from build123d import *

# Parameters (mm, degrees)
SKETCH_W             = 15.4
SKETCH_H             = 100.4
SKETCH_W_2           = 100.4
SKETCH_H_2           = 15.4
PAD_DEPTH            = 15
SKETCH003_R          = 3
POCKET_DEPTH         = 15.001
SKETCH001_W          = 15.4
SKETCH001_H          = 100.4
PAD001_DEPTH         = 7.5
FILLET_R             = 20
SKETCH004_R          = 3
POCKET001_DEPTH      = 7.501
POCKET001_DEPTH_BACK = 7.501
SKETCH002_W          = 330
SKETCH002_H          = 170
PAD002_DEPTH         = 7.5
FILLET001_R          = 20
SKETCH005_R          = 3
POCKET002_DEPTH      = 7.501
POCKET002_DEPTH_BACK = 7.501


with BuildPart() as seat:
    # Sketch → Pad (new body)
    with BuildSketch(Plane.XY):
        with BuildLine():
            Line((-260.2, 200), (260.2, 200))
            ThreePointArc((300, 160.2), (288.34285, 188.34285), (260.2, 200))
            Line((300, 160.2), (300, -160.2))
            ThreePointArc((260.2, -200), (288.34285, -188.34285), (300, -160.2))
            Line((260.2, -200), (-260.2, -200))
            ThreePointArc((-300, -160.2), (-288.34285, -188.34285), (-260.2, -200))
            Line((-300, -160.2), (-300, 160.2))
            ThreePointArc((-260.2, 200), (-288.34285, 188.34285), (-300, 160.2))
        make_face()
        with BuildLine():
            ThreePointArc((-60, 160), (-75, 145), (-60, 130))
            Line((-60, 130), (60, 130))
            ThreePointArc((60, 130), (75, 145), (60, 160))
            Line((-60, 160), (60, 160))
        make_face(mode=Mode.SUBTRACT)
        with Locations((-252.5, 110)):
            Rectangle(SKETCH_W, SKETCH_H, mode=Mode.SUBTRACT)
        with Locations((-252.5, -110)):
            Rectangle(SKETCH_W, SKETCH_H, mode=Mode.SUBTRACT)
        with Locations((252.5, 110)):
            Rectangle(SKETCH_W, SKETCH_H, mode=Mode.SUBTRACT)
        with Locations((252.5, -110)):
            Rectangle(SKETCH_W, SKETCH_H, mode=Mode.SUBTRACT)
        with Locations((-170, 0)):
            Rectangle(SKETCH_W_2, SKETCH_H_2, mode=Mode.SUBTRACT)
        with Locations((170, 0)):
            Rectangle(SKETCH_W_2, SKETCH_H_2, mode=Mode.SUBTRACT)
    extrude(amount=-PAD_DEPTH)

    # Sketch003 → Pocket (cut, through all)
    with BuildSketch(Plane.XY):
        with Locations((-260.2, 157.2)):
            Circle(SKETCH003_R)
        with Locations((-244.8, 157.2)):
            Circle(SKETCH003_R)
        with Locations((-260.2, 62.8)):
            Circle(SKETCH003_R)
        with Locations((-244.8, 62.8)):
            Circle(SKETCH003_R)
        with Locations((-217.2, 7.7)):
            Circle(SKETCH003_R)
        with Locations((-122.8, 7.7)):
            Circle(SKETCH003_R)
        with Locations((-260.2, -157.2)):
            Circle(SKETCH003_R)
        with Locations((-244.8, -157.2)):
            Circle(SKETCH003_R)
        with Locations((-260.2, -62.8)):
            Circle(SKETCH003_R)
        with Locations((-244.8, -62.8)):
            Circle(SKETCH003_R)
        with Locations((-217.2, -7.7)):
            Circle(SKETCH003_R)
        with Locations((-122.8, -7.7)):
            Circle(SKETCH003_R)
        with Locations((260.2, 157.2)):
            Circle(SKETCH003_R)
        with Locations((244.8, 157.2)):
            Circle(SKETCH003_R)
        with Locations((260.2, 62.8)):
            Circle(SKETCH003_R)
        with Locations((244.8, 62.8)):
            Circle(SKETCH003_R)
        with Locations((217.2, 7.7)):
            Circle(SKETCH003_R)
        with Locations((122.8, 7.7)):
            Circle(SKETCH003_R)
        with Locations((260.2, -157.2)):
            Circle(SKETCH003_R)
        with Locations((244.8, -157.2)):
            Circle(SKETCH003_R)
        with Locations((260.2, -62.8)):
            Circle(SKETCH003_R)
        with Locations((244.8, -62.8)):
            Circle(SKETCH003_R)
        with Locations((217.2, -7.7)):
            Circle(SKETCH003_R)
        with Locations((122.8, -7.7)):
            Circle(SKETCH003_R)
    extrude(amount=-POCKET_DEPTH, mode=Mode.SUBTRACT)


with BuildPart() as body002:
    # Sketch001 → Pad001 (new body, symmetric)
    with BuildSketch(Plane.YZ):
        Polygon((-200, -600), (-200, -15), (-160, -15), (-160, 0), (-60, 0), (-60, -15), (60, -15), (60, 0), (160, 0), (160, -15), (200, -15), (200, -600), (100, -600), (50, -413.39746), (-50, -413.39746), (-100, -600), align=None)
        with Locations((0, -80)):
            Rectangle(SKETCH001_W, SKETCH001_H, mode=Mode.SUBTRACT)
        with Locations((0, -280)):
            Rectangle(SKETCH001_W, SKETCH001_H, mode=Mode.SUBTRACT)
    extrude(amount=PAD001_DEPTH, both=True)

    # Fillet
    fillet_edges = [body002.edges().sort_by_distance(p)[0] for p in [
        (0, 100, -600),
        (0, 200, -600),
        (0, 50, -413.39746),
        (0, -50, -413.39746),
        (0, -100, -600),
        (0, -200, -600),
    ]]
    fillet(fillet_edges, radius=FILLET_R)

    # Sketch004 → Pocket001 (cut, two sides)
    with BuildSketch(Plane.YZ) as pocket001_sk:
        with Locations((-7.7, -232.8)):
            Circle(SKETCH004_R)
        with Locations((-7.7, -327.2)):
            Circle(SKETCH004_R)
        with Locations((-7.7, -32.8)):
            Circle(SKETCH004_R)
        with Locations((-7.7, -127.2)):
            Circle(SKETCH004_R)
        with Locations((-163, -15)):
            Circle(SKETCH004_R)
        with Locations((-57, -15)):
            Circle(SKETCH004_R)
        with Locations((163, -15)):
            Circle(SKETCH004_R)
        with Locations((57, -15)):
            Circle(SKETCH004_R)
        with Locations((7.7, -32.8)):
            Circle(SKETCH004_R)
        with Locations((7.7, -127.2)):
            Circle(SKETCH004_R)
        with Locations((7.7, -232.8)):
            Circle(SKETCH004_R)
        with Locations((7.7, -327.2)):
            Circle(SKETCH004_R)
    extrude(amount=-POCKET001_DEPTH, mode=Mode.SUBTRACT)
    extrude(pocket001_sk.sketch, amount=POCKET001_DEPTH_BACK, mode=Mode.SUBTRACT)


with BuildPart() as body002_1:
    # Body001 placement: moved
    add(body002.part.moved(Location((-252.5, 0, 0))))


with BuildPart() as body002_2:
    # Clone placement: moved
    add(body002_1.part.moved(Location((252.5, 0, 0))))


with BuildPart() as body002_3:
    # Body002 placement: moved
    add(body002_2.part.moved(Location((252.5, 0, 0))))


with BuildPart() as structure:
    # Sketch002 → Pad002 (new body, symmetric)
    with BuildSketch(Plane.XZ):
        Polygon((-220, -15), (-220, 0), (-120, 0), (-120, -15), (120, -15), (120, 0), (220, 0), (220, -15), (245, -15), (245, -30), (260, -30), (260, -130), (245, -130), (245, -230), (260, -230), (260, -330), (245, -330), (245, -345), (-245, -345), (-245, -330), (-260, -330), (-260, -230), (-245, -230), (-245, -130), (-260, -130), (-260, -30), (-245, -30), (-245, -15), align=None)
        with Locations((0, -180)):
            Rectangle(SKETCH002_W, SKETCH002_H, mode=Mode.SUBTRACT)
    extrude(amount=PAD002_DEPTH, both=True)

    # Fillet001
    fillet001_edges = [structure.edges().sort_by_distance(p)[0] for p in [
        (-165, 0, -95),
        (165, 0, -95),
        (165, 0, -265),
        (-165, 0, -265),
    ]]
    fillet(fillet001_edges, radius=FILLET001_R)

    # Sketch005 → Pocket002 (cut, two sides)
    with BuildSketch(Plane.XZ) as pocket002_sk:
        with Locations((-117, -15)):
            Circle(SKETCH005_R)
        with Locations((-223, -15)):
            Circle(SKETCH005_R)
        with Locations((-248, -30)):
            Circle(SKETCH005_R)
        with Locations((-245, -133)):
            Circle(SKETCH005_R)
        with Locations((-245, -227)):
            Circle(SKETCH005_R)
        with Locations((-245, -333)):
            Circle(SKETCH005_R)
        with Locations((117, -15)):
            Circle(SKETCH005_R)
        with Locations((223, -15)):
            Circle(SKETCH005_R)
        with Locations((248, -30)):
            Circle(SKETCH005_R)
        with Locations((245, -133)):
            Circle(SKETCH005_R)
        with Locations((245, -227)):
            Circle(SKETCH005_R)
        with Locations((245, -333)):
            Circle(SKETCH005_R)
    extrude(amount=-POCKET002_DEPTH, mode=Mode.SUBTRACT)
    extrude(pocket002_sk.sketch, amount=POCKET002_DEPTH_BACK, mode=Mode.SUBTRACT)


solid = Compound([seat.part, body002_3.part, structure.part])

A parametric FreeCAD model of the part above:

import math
import FreeCAD as App
import Part
import Sketcher
from FreeCAD import Vector
Q = App.Units.Quantity


def edges_at(feature, points):
    """Names of the edges that pass closest to the given points."""
    edges = feature.Shape.Edges
    near = lambda p: min(range(len(edges)), key=lambda i: edges[i].distToShape(Part.Vertex(*p))[0])
    return sorted({f"Edge{near(p) + 1}" for p in points})


def add_polygon(sketch, points):
    """Adds a closed chain of lines whose ends are joined by coincident constraints."""
    first, n = sketch.GeometryCount, len(points)
    for a, b in zip(points, points[1:] + points[:1]):
        sketch.addGeometry(Part.LineSegment(App.Vector(*a, 0), App.Vector(*b, 0)), False)
    for i in range(n):
        sketch.addConstraint(Sketcher.Constraint("Coincident", first + i, 2, first + (i + 1) % n, 1))

doc = App.newDocument("Part")
body = doc.addObject("PartDesign::Body", "Body")

# Sketch on XY plane
sketch1 = body.newObject("Sketcher::SketchObject", "Sketch")
sketch1.AttachmentSupport = (doc.getObject("XY_Plane"), [""])
sketch1.MapMode = "FlatFace"
sketch1.addGeometry(Part.LineSegment(Vector(260, 200, 0), Vector(-260, 200, 0)), False)  # 0
sketch1.addGeometry(Part.ArcOfCircle(Part.Circle(Vector(-260, 160, 0), Vector(0, 0, 1), 40), math.radians(90), math.radians(180)), False)  # 1
sketch1.addGeometry(Part.LineSegment(Vector(-300, 160, 0), Vector(-300, -160, 0)), False)  # 2
sketch1.addGeometry(Part.ArcOfCircle(Part.Circle(Vector(-260, -160, 0), Vector(0, 0, 1), 40), math.radians(180), math.radians(270)), False)  # 3
sketch1.addGeometry(Part.LineSegment(Vector(-260, -200, 0), Vector(260, -200, 0)), False)  # 4
sketch1.addGeometry(Part.ArcOfCircle(Part.Circle(Vector(260, -160, 0), Vector(0, 0, 1), 40), math.radians(-90), math.radians(0)), False)  # 5
sketch1.addGeometry(Part.LineSegment(Vector(300, -160, 0), Vector(300, 160, 0)), False)  # 6
sketch1.addGeometry(Part.ArcOfCircle(Part.Circle(Vector(260, 160, 0), Vector(0, 0, 1), 40), math.radians(0), math.radians(90)), False)  # 7
add_polygon(sketch1, [(245, -160), (245, -60), (260, -60), (260, -160)])  # lines 8-11
add_polygon(sketch1, [(-260, -160), (-260, -60), (-245, -60), (-245, -160)])  # lines 12-15
add_polygon(sketch1, [(120, -8), (120, 8), (220, 8), (220, -8)])  # lines 16-19
add_polygon(sketch1, [(245, 60), (245, 160), (260, 160), (260, 60)])  # lines 20-23
add_polygon(sketch1, [(-220, -8), (-220, 8), (-120, 8), (-120, -8)])  # lines 24-27
sketch1.addGeometry(Part.LineSegment(Vector(-60, 160, 0), Vector(60, 160, 0)), False)  # 28
sketch1.addGeometry(Part.ArcOfCircle(Part.Circle(Vector(60, 145, 0), Vector(0, 0, 1), 15), math.radians(-90), math.radians(90)), False)  # 29
sketch1.addGeometry(Part.LineSegment(Vector(60, 130, 0), Vector(-60, 130, 0)), False)  # 30
sketch1.addGeometry(Part.ArcOfCircle(Part.Circle(Vector(-60, 145, 0), Vector(0, 0, 1), 15), math.radians(90), math.radians(270)), False)  # 31
add_polygon(sketch1, [(-260, 60), (-260, 160), (-245, 160), (-245, 60)])  # lines 32-35
sketch1.addConstraint(Sketcher.Constraint("Tangent", 0, 2, 1, 1))
sketch1.addConstraint(Sketcher.Constraint("Tangent", 1, 2, 2, 1))
sketch1.addConstraint(Sketcher.Constraint("Tangent", 2, 2, 3, 1))
sketch1.addConstraint(Sketcher.Constraint("Tangent", 3, 2, 4, 1))
sketch1.addConstraint(Sketcher.Constraint("Tangent", 4, 2, 5, 1))
sketch1.addConstraint(Sketcher.Constraint("Tangent", 5, 2, 6, 1))
sketch1.addConstraint(Sketcher.Constraint("Tangent", 6, 2, 7, 1))
sketch1.addConstraint(Sketcher.Constraint("Tangent", 7, 2, 0, 1))
sketch1.addConstraint(Sketcher.Constraint("Tangent", 28, 2, 29, 2))
sketch1.addConstraint(Sketcher.Constraint("Tangent", 29, 1, 30, 1))
sketch1.addConstraint(Sketcher.Constraint("Tangent", 30, 2, 31, 2))
sketch1.addConstraint(Sketcher.Constraint("Tangent", 31, 1, 28, 1))
sketch1.addConstraint(Sketcher.Constraint("Horizontal", 0))
sketch1.addConstraint(Sketcher.Constraint("Vertical", 2))
sketch1.addConstraint(Sketcher.Constraint("Horizontal", 4))
sketch1.addConstraint(Sketcher.Constraint("Vertical", 6))
sketch1.addConstraint(Sketcher.Constraint("Vertical", 8))
sketch1.addConstraint(Sketcher.Constraint("Horizontal", 9))
sketch1.addConstraint(Sketcher.Constraint("Vertical", 10))
sketch1.addConstraint(Sketcher.Constraint("Horizontal", 11))
sketch1.addConstraint(Sketcher.Constraint("Vertical", 12))
sketch1.addConstraint(Sketcher.Constraint("Horizontal", 13))
sketch1.addConstraint(Sketcher.Constraint("Vertical", 14))
sketch1.addConstraint(Sketcher.Constraint("Horizontal", 15))
sketch1.addConstraint(Sketcher.Constraint("Vertical", 16))
sketch1.addConstraint(Sketcher.Constraint("Horizontal", 17))
sketch1.addConstraint(Sketcher.Constraint("Vertical", 18))
sketch1.addConstraint(Sketcher.Constraint("Horizontal", 19))
sketch1.addConstraint(Sketcher.Constraint("Vertical", 20))
sketch1.addConstraint(Sketcher.Constraint("Horizontal", 21))
sketch1.addConstraint(Sketcher.Constraint("Vertical", 22))
sketch1.addConstraint(Sketcher.Constraint("Horizontal", 23))
sketch1.addConstraint(Sketcher.Constraint("Vertical", 24))
sketch1.addConstraint(Sketcher.Constraint("Horizontal", 25))
sketch1.addConstraint(Sketcher.Constraint("Vertical", 26))
sketch1.addConstraint(Sketcher.Constraint("Horizontal", 27))
sketch1.addConstraint(Sketcher.Constraint("Horizontal", 28))
sketch1.addConstraint(Sketcher.Constraint("Horizontal", 30))
sketch1.addConstraint(Sketcher.Constraint("Vertical", 32))
sketch1.addConstraint(Sketcher.Constraint("Horizontal", 33))
sketch1.addConstraint(Sketcher.Constraint("Vertical", 34))
sketch1.addConstraint(Sketcher.Constraint("Horizontal", 35))
sketch1.addConstraint(Sketcher.Constraint("Coincident", 10, 2, 5, 3))
sketch1.addConstraint(Sketcher.Constraint("Coincident", 15, 2, 3, 3))
sketch1.addConstraint(Sketcher.Constraint("Coincident", 21, 2, 7, 3))
sketch1.addConstraint(Sketcher.Constraint("Coincident", 32, 2, 1, 3))
sketch1.addConstraint(Sketcher.Constraint("Equal", 1, 3))
sketch1.addConstraint(Sketcher.Constraint("Equal", 3, 5))
sketch1.addConstraint(Sketcher.Constraint("Equal", 5, 7))
sketch1.addConstraint(Sketcher.Constraint("Symmetric", 1, 3, 5, 3, -1, 1))
sketch1.addConstraint(Sketcher.Constraint("Symmetric", 13, 2, 23, 2, -1, 1))
sketch1.addConstraint(Sketcher.Constraint("Symmetric", 18, 2, 24, 2, -1, 1))
sketch1.addConstraint(Sketcher.Constraint("Symmetric", 16, 2, 26, 2, -1, 1))
sketch1.addConstraint(Sketcher.Constraint("Symmetric", 8, 2, 34, 2, -1, 1))
sketch1.addConstraint(Sketcher.Constraint("Symmetric", 8, 2, 13, 2, -2))
sketch1.addConstraint(Sketcher.Constraint("Horizontal", 17, 2, 24, 2))
sketch1.addConstraint(Sketcher.Constraint("Equal", 27, 8))
sketch1.addConstraint(Sketcher.Constraint("Equal", 35, 16))
sketch1.addConstraint(Sketcher.Constraint("Radius", 29, Q("15 mm")))
sketch1.addConstraint(Sketcher.Constraint("Radius", 1, Q("39.8 mm")))
sketch1.addConstraint(Sketcher.Constraint("DistanceX", 28, 1, 28, 2, Q("120 mm")))
sketch1.addConstraint(Sketcher.Constraint("DistanceX", 0, 2, 0, 1, Q("520.4 mm")))
sketch1.addConstraint(Sketcher.Constraint("DistanceX", 9, 1, 9, 2, Q("15.4 mm")))
sketch1.addConstraint(Sketcher.Constraint("DistanceX", 17, 1, 17, 2, Q("100.4 mm")))
sketch1.addConstraint(Sketcher.Constraint("DistanceY", 2, 2, 2, 1, Q("320.4 mm")))
sketch1.addConstraint(Sketcher.Constraint("DistanceX", -1, 1, 29, 3, Q("60 mm")))
sketch1.addConstraint(Sketcher.Constraint("DistanceY", -1, 1, 29, 3, Q("145 mm")))
sketch1.addConstraint(Sketcher.Constraint("DistanceX", 16, 2, 8, 2, Q("125 mm")))
pad1 = body.newObject("PartDesign::Pad", "Pad")
pad1.Profile = sketch1
pad1.Length = 15
pad1.Reversed = True

# Sketch on XY plane
sketch2 = body.newObject("Sketcher::SketchObject", "Sketch001")
sketch2.AttachmentSupport = (doc.getObject("XY_Plane"), [""])
sketch2.MapMode = "FlatFace"
sketch2.addGeometry(Part.Circle(Vector(-260.2, 157.2, 0), Vector(0, 0, 1), 3), False)
sketch2.addGeometry(Part.Circle(Vector(-244.8, 157.2, 0), Vector(0, 0, 1), 3), False)
sketch2.addGeometry(Part.Circle(Vector(-260.2, 62.8, 0), Vector(0, 0, 1), 3), False)
sketch2.addGeometry(Part.Circle(Vector(-244.8, 62.8, 0), Vector(0, 0, 1), 3), False)
sketch2.addGeometry(Part.Circle(Vector(-217.2, 7.7, 0), Vector(0, 0, 1), 3), False)
sketch2.addGeometry(Part.Circle(Vector(-122.8, 7.7, 0), Vector(0, 0, 1), 3), False)
sketch2.addGeometry(Part.Circle(Vector(-260.2, -157.2, 0), Vector(0, 0, 1), 3), False)
sketch2.addGeometry(Part.Circle(Vector(-244.8, -157.2, 0), Vector(0, 0, 1), 3), False)
sketch2.addGeometry(Part.Circle(Vector(-260.2, -62.8, 0), Vector(0, 0, 1), 3), False)
sketch2.addGeometry(Part.Circle(Vector(-244.8, -62.8, 0), Vector(0, 0, 1), 3), False)
sketch2.addGeometry(Part.Circle(Vector(-217.2, -7.7, 0), Vector(0, 0, 1), 3), False)
sketch2.addGeometry(Part.Circle(Vector(-122.8, -7.7, 0), Vector(0, 0, 1), 3), False)
sketch2.addGeometry(Part.Circle(Vector(260.2, 157.2, 0), Vector(0, 0, 1), 3), False)
sketch2.addGeometry(Part.Circle(Vector(244.8, 157.2, 0), Vector(0, 0, 1), 3), False)
sketch2.addGeometry(Part.Circle(Vector(260.2, 62.8, 0), Vector(0, 0, 1), 3), False)
sketch2.addGeometry(Part.Circle(Vector(244.8, 62.8, 0), Vector(0, 0, 1), 3), False)
sketch2.addGeometry(Part.Circle(Vector(217.2, 7.7, 0), Vector(0, 0, 1), 3), False)
sketch2.addGeometry(Part.Circle(Vector(122.8, 7.7, 0), Vector(0, 0, 1), 3), False)
sketch2.addGeometry(Part.Circle(Vector(260.2, -157.2, 0), Vector(0, 0, 1), 3), False)
sketch2.addGeometry(Part.Circle(Vector(244.8, -157.2, 0), Vector(0, 0, 1), 3), False)
sketch2.addGeometry(Part.Circle(Vector(260.2, -62.8, 0), Vector(0, 0, 1), 3), False)
sketch2.addGeometry(Part.Circle(Vector(244.8, -62.8, 0), Vector(0, 0, 1), 3), False)
sketch2.addGeometry(Part.Circle(Vector(217.2, -7.7, 0), Vector(0, 0, 1), 3), False)
sketch2.addGeometry(Part.Circle(Vector(122.8, -7.7, 0), Vector(0, 0, 1), 3), False)
sketch2.addConstraint(Sketcher.Constraint("Equal", 0, 1))
sketch2.addConstraint(Sketcher.Constraint("Equal", 1, 2))
sketch2.addConstraint(Sketcher.Constraint("Equal", 2, 3))
sketch2.addConstraint(Sketcher.Constraint("Equal", 3, 4))
sketch2.addConstraint(Sketcher.Constraint("Equal", 4, 5))
sketch2.addConstraint(Sketcher.Constraint("Equal", 5, 6))
sketch2.addConstraint(Sketcher.Constraint("Equal", 6, 7))
sketch2.addConstraint(Sketcher.Constraint("Equal", 7, 8))
sketch2.addConstraint(Sketcher.Constraint("Equal", 8, 9))
sketch2.addConstraint(Sketcher.Constraint("Equal", 9, 10))
sketch2.addConstraint(Sketcher.Constraint("Equal", 10, 11))
sketch2.addConstraint(Sketcher.Constraint("Equal", 11, 12))
sketch2.addConstraint(Sketcher.Constraint("Equal", 12, 13))
sketch2.addConstraint(Sketcher.Constraint("Equal", 13, 14))
sketch2.addConstraint(Sketcher.Constraint("Equal", 14, 15))
sketch2.addConstraint(Sketcher.Constraint("Equal", 15, 16))
sketch2.addConstraint(Sketcher.Constraint("Equal", 16, 17))
sketch2.addConstraint(Sketcher.Constraint("Equal", 17, 18))
sketch2.addConstraint(Sketcher.Constraint("Equal", 18, 19))
sketch2.addConstraint(Sketcher.Constraint("Equal", 19, 20))
sketch2.addConstraint(Sketcher.Constraint("Equal", 20, 21))
sketch2.addConstraint(Sketcher.Constraint("Equal", 21, 22))
sketch2.addConstraint(Sketcher.Constraint("Equal", 22, 23))
sketch2.addConstraint(Sketcher.Constraint("Symmetric", 6, 3, 12, 3, -1, 1))
sketch2.addConstraint(Sketcher.Constraint("Symmetric", 7, 3, 13, 3, -1, 1))
sketch2.addConstraint(Sketcher.Constraint("Symmetric", 8, 3, 14, 3, -1, 1))
sketch2.addConstraint(Sketcher.Constraint("Symmetric", 9, 3, 15, 3, -1, 1))
sketch2.addConstraint(Sketcher.Constraint("Symmetric", 10, 3, 16, 3, -1, 1))
sketch2.addConstraint(Sketcher.Constraint("Symmetric", 11, 3, 17, 3, -1, 1))
sketch2.addConstraint(Sketcher.Constraint("Symmetric", 0, 3, 18, 3, -1, 1))
sketch2.addConstraint(Sketcher.Constraint("Symmetric", 1, 3, 19, 3, -1, 1))
sketch2.addConstraint(Sketcher.Constraint("Symmetric", 2, 3, 20, 3, -1, 1))
sketch2.addConstraint(Sketcher.Constraint("Symmetric", 3, 3, 21, 3, -1, 1))
sketch2.addConstraint(Sketcher.Constraint("Symmetric", 4, 3, 22, 3, -1, 1))
sketch2.addConstraint(Sketcher.Constraint("Symmetric", 5, 3, 23, 3, -1, 1))
sketch2.addConstraint(Sketcher.Constraint("Symmetric", 0, 3, 12, 3, -2))
sketch2.addConstraint(Sketcher.Constraint("Symmetric", 1, 3, 13, 3, -2))
sketch2.addConstraint(Sketcher.Constraint("Symmetric", 2, 3, 14, 3, -2))
sketch2.addConstraint(Sketcher.Constraint("Symmetric", 3, 3, 15, 3, -2))
sketch2.addConstraint(Sketcher.Constraint("Symmetric", 4, 3, 16, 3, -2))
sketch2.addConstraint(Sketcher.Constraint("Symmetric", 5, 3, 17, 3, -2))
sketch2.addConstraint(Sketcher.Constraint("Horizontal", 0, 3, 1, 3))
sketch2.addConstraint(Sketcher.Constraint("Horizontal", 2, 3, 3, 3))
sketch2.addConstraint(Sketcher.Constraint("Horizontal", 4, 3, 5, 3))
sketch2.addConstraint(Sketcher.Constraint("Vertical", 0, 3, 2, 3))
sketch2.addConstraint(Sketcher.Constraint("Vertical", 1, 3, 3, 3))
sketch2.addConstraint(Sketcher.Constraint("Diameter", 0, Q("6 mm")))
sketch2.addConstraint(Sketcher.Constraint("DistanceX", 2, 3, 4, 3, Q("43 mm")))
sketch2.addConstraint(Sketcher.Constraint("DistanceX", 3, 3, 5, 3, Q("122 mm")))
sketch2.addConstraint(Sketcher.Constraint("DistanceY", 6, 3, 2, 3, Q("220 mm")))
sketch2.addConstraint(Sketcher.Constraint("DistanceX", 5, 3, 12, 3, Q("383 mm")))
sketch2.addConstraint(Sketcher.Constraint("DistanceX", 0, 3, -1, 1, Q("260.2 mm")))
sketch2.addConstraint(Sketcher.Constraint("DistanceY", -1, 1, 0, 3, Q("157.2 mm")))
sketch2.addConstraint(Sketcher.Constraint("DistanceY", -1, 1, 4, 3, Q("7.7 mm")))
pocket1 = body.newObject("PartDesign::Pocket", "Pocket")
pocket1.Profile = sketch2
pocket1.Type = "ThroughAll"
body2 = doc.addObject("PartDesign::Body", "Body001")

# Sketch on YZ plane
sketch3 = body2.newObject("Sketcher::SketchObject", "Sketch002")
sketch3.AttachmentSupport = (doc.getObject("YZ_Plane001"), [""])
sketch3.MapMode = "FlatFace"
add_polygon(sketch3, [(-200, -15), (-200, -600), (-100, -600), (-50, -413), (50, -413), (100, -600), (200, -600), (200, -15), (160, -15), (160, 0), (60, 0), (60, -15), (-60, -15), (-60, 0), (-160, 0), (-160, -15)])  # lines 0-15
add_polygon(sketch3, [(-8, -330), (-8, -230), (8, -230), (8, -330)])  # lines 16-19
add_polygon(sketch3, [(-8, -130), (-8, -30), (8, -30), (8, -130)])  # lines 20-23
sketch3.addConstraint(Sketcher.Constraint("Vertical", 0))
sketch3.addConstraint(Sketcher.Constraint("Horizontal", 1))
sketch3.addConstraint(Sketcher.Constraint("Horizontal", 3))
sketch3.addConstraint(Sketcher.Constraint("Horizontal", 5))
sketch3.addConstraint(Sketcher.Constraint("Vertical", 6))
sketch3.addConstraint(Sketcher.Constraint("Horizontal", 7))
sketch3.addConstraint(Sketcher.Constraint("Vertical", 8))
sketch3.addConstraint(Sketcher.Constraint("Horizontal", 9))
sketch3.addConstraint(Sketcher.Constraint("Vertical", 10))
sketch3.addConstraint(Sketcher.Constraint("Horizontal", 11))
sketch3.addConstraint(Sketcher.Constraint("Vertical", 12))
sketch3.addConstraint(Sketcher.Constraint("Horizontal", 13))
sketch3.addConstraint(Sketcher.Constraint("Vertical", 14))
sketch3.addConstraint(Sketcher.Constraint("Horizontal", 15))
sketch3.addConstraint(Sketcher.Constraint("Vertical", 16))
sketch3.addConstraint(Sketcher.Constraint("Horizontal", 17))
sketch3.addConstraint(Sketcher.Constraint("Vertical", 18))
sketch3.addConstraint(Sketcher.Constraint("Horizontal", 19))
sketch3.addConstraint(Sketcher.Constraint("Vertical", 20))
sketch3.addConstraint(Sketcher.Constraint("Horizontal", 21))
sketch3.addConstraint(Sketcher.Constraint("Vertical", 22))
sketch3.addConstraint(Sketcher.Constraint("Horizontal", 23))
sketch3.addConstraint(Sketcher.Constraint("Symmetric", 9, 2, 12, 2, -1, 1))
sketch3.addConstraint(Sketcher.Constraint("Symmetric", 1, 2, 4, 2, -2))
sketch3.addConstraint(Sketcher.Constraint("Symmetric", 8, 2, 13, 2, -2))
sketch3.addConstraint(Sketcher.Constraint("Symmetric", 6, 2, 15, 2, -2))
sketch3.addConstraint(Sketcher.Constraint("Horizontal", 7, 2, 10, 2))
sketch3.addConstraint(Sketcher.Constraint("Vertical", 19, 2, 20, 2))
sketch3.addConstraint(Sketcher.Constraint("Vertical", 18, 2, 21, 2))
sketch3.addConstraint(Sketcher.Constraint("Equal", 1, 3))
sketch3.addConstraint(Sketcher.Constraint("Equal", 5, 9))
sketch3.addConstraint(Sketcher.Constraint("Equal", 18, 20))
sketch3.addConstraint(Sketcher.Constraint("Equal", 2, 4))
sketch3.addConstraint(Sketcher.Constraint("DistanceX", 1, 1, 1, 2, Q("100 mm")))
sketch3.addConstraint(Sketcher.Constraint("DistanceX", 7, 2, 7, 1, Q("40 mm")))
sketch3.addConstraint(Sketcher.Constraint("DistanceX", 11, 2, 11, 1, Q("120 mm")))
sketch3.addConstraint(Sketcher.Constraint("DistanceY", 0, 2, 0, 1, Q("585 mm")))
sketch3.addConstraint(Sketcher.Constraint("DistanceY", 8, 1, 8, 2, Q("15 mm")))
sketch3.addConstraint(Sketcher.Constraint("Angle", 2, Q("75 deg")))
sketch3.addConstraint(Sketcher.Constraint("DistanceX", 17, 1, 17, 2, Q("15.4 mm")))
sketch3.addConstraint(Sketcher.Constraint("DistanceY", 16, 1, 16, 2, Q("100.4 mm")))
sketch3.addConstraint(Sketcher.Constraint("DistanceX", 16, 2, -1, 1, Q("7.7 mm")))
sketch3.addConstraint(Sketcher.Constraint("DistanceY", 16, 2, -1, 1, Q("229.8 mm")))
sketch3.addConstraint(Sketcher.Constraint("DistanceY", 20, 2, -1, 1, Q("29.8 mm")))
pad2 = body2.newObject("PartDesign::Pad", "Pad001")
pad2.Profile = sketch3
pad2.Length = 15
pad2.Midplane = True
doc.recompute()

fillet = body2.newObject("PartDesign::Fillet", "Fillet")
fillet.Base = (pad2, edges_at(pad2, [
    (0, 100, -600),
    (0, 200, -600),
    (0, 50, -413.397),
    (0, -50, -413.397),
    (0, -100, -600),
    (0, -200, -600),
]))
fillet.Radius = 20

# Sketch on YZ plane
sketch4 = body2.newObject("Sketcher::SketchObject", "Sketch003")
sketch4.AttachmentSupport = (doc.getObject("YZ_Plane001"), [""])
sketch4.MapMode = "FlatFace"
sketch4.addGeometry(Part.Circle(Vector(-7.7, -232.8, 0), Vector(0, 0, 1), 3), False)
sketch4.addGeometry(Part.Circle(Vector(-7.7, -327.2, 0), Vector(0, 0, 1), 3), False)
sketch4.addGeometry(Part.Circle(Vector(-7.7, -32.8, 0), Vector(0, 0, 1), 3), False)
sketch4.addGeometry(Part.Circle(Vector(-7.7, -127.2, 0), Vector(0, 0, 1), 3), False)
sketch4.addGeometry(Part.Circle(Vector(-163, -15, 0), Vector(0, 0, 1), 3), False)
sketch4.addGeometry(Part.Circle(Vector(-57, -15, 0), Vector(0, 0, 1), 3), False)
sketch4.addGeometry(Part.Circle(Vector(163, -15, 0), Vector(0, 0, 1), 3), False)
sketch4.addGeometry(Part.Circle(Vector(57, -15, 0), Vector(0, 0, 1), 3), False)
sketch4.addGeometry(Part.Circle(Vector(7.7, -32.8, 0), Vector(0, 0, 1), 3), False)
sketch4.addGeometry(Part.Circle(Vector(7.7, -127.2, 0), Vector(0, 0, 1), 3), False)
sketch4.addGeometry(Part.Circle(Vector(7.7, -232.8, 0), Vector(0, 0, 1), 3), False)
sketch4.addGeometry(Part.Circle(Vector(7.7, -327.2, 0), Vector(0, 0, 1), 3), False)
sketch4.addConstraint(Sketcher.Constraint("Equal", 0, 1))
sketch4.addConstraint(Sketcher.Constraint("Equal", 1, 2))
sketch4.addConstraint(Sketcher.Constraint("Equal", 2, 3))
sketch4.addConstraint(Sketcher.Constraint("Equal", 3, 4))
sketch4.addConstraint(Sketcher.Constraint("Equal", 4, 5))
sketch4.addConstraint(Sketcher.Constraint("Equal", 5, 6))
sketch4.addConstraint(Sketcher.Constraint("Equal", 6, 7))
sketch4.addConstraint(Sketcher.Constraint("Equal", 7, 8))
sketch4.addConstraint(Sketcher.Constraint("Equal", 8, 9))
sketch4.addConstraint(Sketcher.Constraint("Equal", 9, 10))
sketch4.addConstraint(Sketcher.Constraint("Equal", 10, 11))
sketch4.addConstraint(Sketcher.Constraint("Symmetric", 4, 3, 6, 3, -2))
sketch4.addConstraint(Sketcher.Constraint("Symmetric", 5, 3, 7, 3, -2))
sketch4.addConstraint(Sketcher.Constraint("Symmetric", 2, 3, 8, 3, -2))
sketch4.addConstraint(Sketcher.Constraint("Symmetric", 3, 3, 9, 3, -2))
sketch4.addConstraint(Sketcher.Constraint("Symmetric", 0, 3, 10, 3, -2))
sketch4.addConstraint(Sketcher.Constraint("Symmetric", 1, 3, 11, 3, -2))
sketch4.addConstraint(Sketcher.Constraint("Horizontal", 4, 3, 5, 3))
sketch4.addConstraint(Sketcher.Constraint("Vertical", 0, 3, 1, 3))
sketch4.addConstraint(Sketcher.Constraint("Vertical", 1, 3, 2, 3))
sketch4.addConstraint(Sketcher.Constraint("Vertical", 2, 3, 3, 3))
sketch4.addConstraint(Sketcher.Constraint("Diameter", 0, Q("6 mm")))
sketch4.addConstraint(Sketcher.Constraint("DistanceX", 4, 3, -1, 1, Q("163 mm")))
sketch4.addConstraint(Sketcher.Constraint("DistanceY", 4, 3, -1, 1, Q("15 mm")))
sketch4.addConstraint(Sketcher.Constraint("DistanceX", 5, 3, -1, 1, Q("57 mm")))
sketch4.addConstraint(Sketcher.Constraint("DistanceY", 0, 3, 2, 3, Q("200 mm")))
sketch4.addConstraint(Sketcher.Constraint("DistanceY", 1, 3, 3, 3, Q("200 mm")))
sketch4.addConstraint(Sketcher.Constraint("DistanceX", 0, 3, -1, 1, Q("7.7 mm")))
sketch4.addConstraint(Sketcher.Constraint("DistanceY", 0, 3, -1, 1, Q("232.8 mm")))
sketch4.addConstraint(Sketcher.Constraint("DistanceY", 1, 3, -1, 1, Q("327.2 mm")))
pocket2 = body2.newObject("PartDesign::Pocket", "Pocket001")
pocket2.Profile = sketch4
pocket2.Type = "ThroughAll"
pocket2.Midplane = True
body3 = doc.addObject("PartDesign::Body", "Body002")
doc.recompute()

body2.Placement = App.Placement(Vector(-252.5, 0, 0), App.Rotation(Vector(0, 0, 1), 0))
boolean = body3.newObject("PartDesign::Boolean", "Boolean")
boolean.Type = "Fuse"
boolean.addObjects([body2])
body4 = doc.addObject("PartDesign::Body", "Body003")
doc.recompute()

body3.Placement = App.Placement(Vector(252.5, 0, 0), App.Rotation(Vector(0, 0, 1), 0))
boolean2 = body4.newObject("PartDesign::Boolean", "Boolean001")
boolean2.Type = "Fuse"
boolean2.addObjects([body3])
body5 = doc.addObject("PartDesign::Body", "Body004")
doc.recompute()

body4.Placement = App.Placement(Vector(252.5, 0, 0), App.Rotation(Vector(0, 0, 1), 0))
boolean3 = body5.newObject("PartDesign::Boolean", "Boolean002")
boolean3.Type = "Fuse"
boolean3.addObjects([body4])
body6 = doc.addObject("PartDesign::Body", "Body005")

# Sketch on XZ plane
sketch5 = body6.newObject("Sketcher::SketchObject", "Sketch004")
sketch5.AttachmentSupport = (doc.getObject("XZ_Plane005"), [""])
sketch5.MapMode = "FlatFace"
add_polygon(sketch5, [(-220, 0), (-220, -15), (-245, -15), (-245, -30), (-260, -30), (-260, -130), (-245, -130), (-245, -230), (-260, -230), (-260, -330), (-245, -330), (-245, -345), (245, -345), (245, -330), (260, -330), (260, -230), (245, -230), (245, -130), (260, -130), (260, -30), (245, -30), (245, -15), (220, -15), (220, 0), (120, 0), (120, -15), (-120, -15), (-120, 0)])  # lines 0-27
add_polygon(sketch5, [(-165, -265), (-165, -95), (165, -95), (165, -265)])  # lines 28-31
sketch5.addConstraint(Sketcher.Constraint("Vertical", 0))
sketch5.addConstraint(Sketcher.Constraint("Horizontal", 1))
sketch5.addConstraint(Sketcher.Constraint("Vertical", 2))
sketch5.addConstraint(Sketcher.Constraint("Horizontal", 3))
sketch5.addConstraint(Sketcher.Constraint("Vertical", 4))
sketch5.addConstraint(Sketcher.Constraint("Horizontal", 5))
sketch5.addConstraint(Sketcher.Constraint("Vertical", 6))
sketch5.addConstraint(Sketcher.Constraint("Horizontal", 7))
sketch5.addConstraint(Sketcher.Constraint("Vertical", 8))
sketch5.addConstraint(Sketcher.Constraint("Horizontal", 9))
sketch5.addConstraint(Sketcher.Constraint("Vertical", 10))
sketch5.addConstraint(Sketcher.Constraint("Horizontal", 11))
sketch5.addConstraint(Sketcher.Constraint("Vertical", 12))
sketch5.addConstraint(Sketcher.Constraint("Horizontal", 13))
sketch5.addConstraint(Sketcher.Constraint("Vertical", 14))
sketch5.addConstraint(Sketcher.Constraint("Horizontal", 15))
sketch5.addConstraint(Sketcher.Constraint("Vertical", 16))
sketch5.addConstraint(Sketcher.Constraint("Horizontal", 17))
sketch5.addConstraint(Sketcher.Constraint("Vertical", 18))
sketch5.addConstraint(Sketcher.Constraint("Horizontal", 19))
sketch5.addConstraint(Sketcher.Constraint("Vertical", 20))
sketch5.addConstraint(Sketcher.Constraint("Horizontal", 21))
sketch5.addConstraint(Sketcher.Constraint("Vertical", 22))
sketch5.addConstraint(Sketcher.Constraint("Horizontal", 23))
sketch5.addConstraint(Sketcher.Constraint("Vertical", 24))
sketch5.addConstraint(Sketcher.Constraint("Horizontal", 25))
sketch5.addConstraint(Sketcher.Constraint("Vertical", 26))
sketch5.addConstraint(Sketcher.Constraint("Horizontal", 27))
sketch5.addConstraint(Sketcher.Constraint("Vertical", 28))
sketch5.addConstraint(Sketcher.Constraint("Horizontal", 29))
sketch5.addConstraint(Sketcher.Constraint("Vertical", 30))
sketch5.addConstraint(Sketcher.Constraint("Horizontal", 31))
sketch5.addConstraint(Sketcher.Constraint("Symmetric", 23, 2, 26, 2, -1, 1))
sketch5.addConstraint(Sketcher.Constraint("Symmetric", 9, 2, 12, 2, -2))
sketch5.addConstraint(Sketcher.Constraint("Symmetric", 7, 2, 14, 2, -2))
sketch5.addConstraint(Sketcher.Constraint("Symmetric", 5, 2, 16, 2, -2))
sketch5.addConstraint(Sketcher.Constraint("Symmetric", 3, 2, 18, 2, -2))
sketch5.addConstraint(Sketcher.Constraint("Symmetric", 1, 2, 20, 2, -2))
sketch5.addConstraint(Sketcher.Constraint("Symmetric", 22, 2, 27, 2, -2))
sketch5.addConstraint(Sketcher.Constraint("Horizontal", 21, 2, 24, 2))
sketch5.addConstraint(Sketcher.Constraint("Vertical", 2, 2, 5, 2))
sketch5.addConstraint(Sketcher.Constraint("Vertical", 4, 2, 7, 2))
sketch5.addConstraint(Sketcher.Constraint("Vertical", 6, 2, 9, 2))
sketch5.addConstraint(Sketcher.Constraint("Equal", 19, 0))
sketch5.addConstraint(Sketcher.Constraint("Equal", 0, 2))
sketch5.addConstraint(Sketcher.Constraint("Equal", 27, 4))
sketch5.addConstraint(Sketcher.Constraint("Equal", 4, 6))
sketch5.addConstraint(Sketcher.Constraint("Equal", 6, 8))
sketch5.addConstraint(Sketcher.Constraint("Equal", 2, 10))
sketch5.addConstraint(Sketcher.Constraint("DistanceX", 1, 2, 1, 1, Q("25 mm")))
sketch5.addConstraint(Sketcher.Constraint("DistanceX", 3, 2, 3, 1, Q("15 mm")))
sketch5.addConstraint(Sketcher.Constraint("DistanceX", 11, 1, 11, 2, Q("490 mm")))
sketch5.addConstraint(Sketcher.Constraint("DistanceX", 23, 2, 23, 1, Q("100 mm")))
sketch5.addConstraint(Sketcher.Constraint("DistanceX", 29, 1, 29, 2, Q("330 mm")))
sketch5.addConstraint(Sketcher.Constraint("DistanceY", 28, 1, 28, 2, Q("170 mm")))
sketch5.addConstraint(Sketcher.Constraint("DistanceX", 28, 2, -1, 1, Q("165 mm")))
sketch5.addConstraint(Sketcher.Constraint("DistanceY", 28, 2, -1, 1, Q("95 mm")))
pad3 = body6.newObject("PartDesign::Pad", "Pad002")
pad3.Profile = sketch5
pad3.Length = 15
pad3.Midplane = True
doc.recompute()

fillet2 = body6.newObject("PartDesign::Fillet", "Fillet001")
fillet2.Base = (pad3, edges_at(pad3, [
    (-165, 0, -95),
    (165, 0, -95),
    (165, 0, -265),
    (-165, 0, -265),
]))
fillet2.Radius = 20

# Sketch on XZ plane
sketch6 = body6.newObject("Sketcher::SketchObject", "Sketch005")
sketch6.AttachmentSupport = (doc.getObject("XZ_Plane005"), [""])
sketch6.MapMode = "FlatFace"
sketch6.addGeometry(Part.Circle(Vector(-117, -15, 0), Vector(0, 0, 1), 3), False)
sketch6.addGeometry(Part.Circle(Vector(-223, -15, 0), Vector(0, 0, 1), 3), False)
sketch6.addGeometry(Part.Circle(Vector(-248, -30, 0), Vector(0, 0, 1), 3), False)
sketch6.addGeometry(Part.Circle(Vector(-245, -133, 0), Vector(0, 0, 1), 3), False)
sketch6.addGeometry(Part.Circle(Vector(-245, -227, 0), Vector(0, 0, 1), 3), False)
sketch6.addGeometry(Part.Circle(Vector(-245, -333, 0), Vector(0, 0, 1), 3), False)
sketch6.addGeometry(Part.Circle(Vector(117, -15, 0), Vector(0, 0, 1), 3), False)
sketch6.addGeometry(Part.Circle(Vector(223, -15, 0), Vector(0, 0, 1), 3), False)
sketch6.addGeometry(Part.Circle(Vector(248, -30, 0), Vector(0, 0, 1), 3), False)
sketch6.addGeometry(Part.Circle(Vector(245, -133, 0), Vector(0, 0, 1), 3), False)
sketch6.addGeometry(Part.Circle(Vector(245, -227, 0), Vector(0, 0, 1), 3), False)
sketch6.addGeometry(Part.Circle(Vector(245, -333, 0), Vector(0, 0, 1), 3), False)
sketch6.addConstraint(Sketcher.Constraint("Equal", 0, 1))
sketch6.addConstraint(Sketcher.Constraint("Equal", 1, 2))
sketch6.addConstraint(Sketcher.Constraint("Equal", 2, 3))
sketch6.addConstraint(Sketcher.Constraint("Equal", 3, 4))
sketch6.addConstraint(Sketcher.Constraint("Equal", 4, 5))
sketch6.addConstraint(Sketcher.Constraint("Equal", 5, 6))
sketch6.addConstraint(Sketcher.Constraint("Equal", 6, 7))
sketch6.addConstraint(Sketcher.Constraint("Equal", 7, 8))
sketch6.addConstraint(Sketcher.Constraint("Equal", 8, 9))
sketch6.addConstraint(Sketcher.Constraint("Equal", 9, 10))
sketch6.addConstraint(Sketcher.Constraint("Equal", 10, 11))
sketch6.addConstraint(Sketcher.Constraint("Symmetric", 0, 3, 6, 3, -2))
sketch6.addConstraint(Sketcher.Constraint("Symmetric", 1, 3, 7, 3, -2))
sketch6.addConstraint(Sketcher.Constraint("Symmetric", 2, 3, 8, 3, -2))
sketch6.addConstraint(Sketcher.Constraint("Symmetric", 3, 3, 9, 3, -2))
sketch6.addConstraint(Sketcher.Constraint("Symmetric", 4, 3, 10, 3, -2))
sketch6.addConstraint(Sketcher.Constraint("Symmetric", 5, 3, 11, 3, -2))
sketch6.addConstraint(Sketcher.Constraint("Horizontal", 0, 3, 1, 3))
sketch6.addConstraint(Sketcher.Constraint("Vertical", 3, 3, 4, 3))
sketch6.addConstraint(Sketcher.Constraint("Vertical", 4, 3, 5, 3))
sketch6.addConstraint(Sketcher.Constraint("Diameter", 0, Q("6 mm")))
sketch6.addConstraint(Sketcher.Constraint("DistanceX", 0, 3, -1, 1, Q("117 mm")))
sketch6.addConstraint(Sketcher.Constraint("DistanceY", 0, 3, -1, 1, Q("15 mm")))
sketch6.addConstraint(Sketcher.Constraint("DistanceX", 1, 3, -1, 1, Q("223 mm")))
sketch6.addConstraint(Sketcher.Constraint("DistanceX", 2, 3, -1, 1, Q("248 mm")))
sketch6.addConstraint(Sketcher.Constraint("DistanceY", 2, 3, -1, 1, Q("30 mm")))
sketch6.addConstraint(Sketcher.Constraint("DistanceX", 3, 3, -1, 1, Q("245 mm")))
sketch6.addConstraint(Sketcher.Constraint("DistanceY", 3, 3, -1, 1, Q("133 mm")))
sketch6.addConstraint(Sketcher.Constraint("DistanceY", 4, 3, -1, 1, Q("227 mm")))
sketch6.addConstraint(Sketcher.Constraint("DistanceY", 5, 3, -1, 1, Q("333 mm")))
pocket3 = body6.newObject("PartDesign::Pocket", "Pocket002")
pocket3.Profile = sketch6
pocket3.Type = "ThroughAll"
pocket3.Midplane = True

doc.recompute()
